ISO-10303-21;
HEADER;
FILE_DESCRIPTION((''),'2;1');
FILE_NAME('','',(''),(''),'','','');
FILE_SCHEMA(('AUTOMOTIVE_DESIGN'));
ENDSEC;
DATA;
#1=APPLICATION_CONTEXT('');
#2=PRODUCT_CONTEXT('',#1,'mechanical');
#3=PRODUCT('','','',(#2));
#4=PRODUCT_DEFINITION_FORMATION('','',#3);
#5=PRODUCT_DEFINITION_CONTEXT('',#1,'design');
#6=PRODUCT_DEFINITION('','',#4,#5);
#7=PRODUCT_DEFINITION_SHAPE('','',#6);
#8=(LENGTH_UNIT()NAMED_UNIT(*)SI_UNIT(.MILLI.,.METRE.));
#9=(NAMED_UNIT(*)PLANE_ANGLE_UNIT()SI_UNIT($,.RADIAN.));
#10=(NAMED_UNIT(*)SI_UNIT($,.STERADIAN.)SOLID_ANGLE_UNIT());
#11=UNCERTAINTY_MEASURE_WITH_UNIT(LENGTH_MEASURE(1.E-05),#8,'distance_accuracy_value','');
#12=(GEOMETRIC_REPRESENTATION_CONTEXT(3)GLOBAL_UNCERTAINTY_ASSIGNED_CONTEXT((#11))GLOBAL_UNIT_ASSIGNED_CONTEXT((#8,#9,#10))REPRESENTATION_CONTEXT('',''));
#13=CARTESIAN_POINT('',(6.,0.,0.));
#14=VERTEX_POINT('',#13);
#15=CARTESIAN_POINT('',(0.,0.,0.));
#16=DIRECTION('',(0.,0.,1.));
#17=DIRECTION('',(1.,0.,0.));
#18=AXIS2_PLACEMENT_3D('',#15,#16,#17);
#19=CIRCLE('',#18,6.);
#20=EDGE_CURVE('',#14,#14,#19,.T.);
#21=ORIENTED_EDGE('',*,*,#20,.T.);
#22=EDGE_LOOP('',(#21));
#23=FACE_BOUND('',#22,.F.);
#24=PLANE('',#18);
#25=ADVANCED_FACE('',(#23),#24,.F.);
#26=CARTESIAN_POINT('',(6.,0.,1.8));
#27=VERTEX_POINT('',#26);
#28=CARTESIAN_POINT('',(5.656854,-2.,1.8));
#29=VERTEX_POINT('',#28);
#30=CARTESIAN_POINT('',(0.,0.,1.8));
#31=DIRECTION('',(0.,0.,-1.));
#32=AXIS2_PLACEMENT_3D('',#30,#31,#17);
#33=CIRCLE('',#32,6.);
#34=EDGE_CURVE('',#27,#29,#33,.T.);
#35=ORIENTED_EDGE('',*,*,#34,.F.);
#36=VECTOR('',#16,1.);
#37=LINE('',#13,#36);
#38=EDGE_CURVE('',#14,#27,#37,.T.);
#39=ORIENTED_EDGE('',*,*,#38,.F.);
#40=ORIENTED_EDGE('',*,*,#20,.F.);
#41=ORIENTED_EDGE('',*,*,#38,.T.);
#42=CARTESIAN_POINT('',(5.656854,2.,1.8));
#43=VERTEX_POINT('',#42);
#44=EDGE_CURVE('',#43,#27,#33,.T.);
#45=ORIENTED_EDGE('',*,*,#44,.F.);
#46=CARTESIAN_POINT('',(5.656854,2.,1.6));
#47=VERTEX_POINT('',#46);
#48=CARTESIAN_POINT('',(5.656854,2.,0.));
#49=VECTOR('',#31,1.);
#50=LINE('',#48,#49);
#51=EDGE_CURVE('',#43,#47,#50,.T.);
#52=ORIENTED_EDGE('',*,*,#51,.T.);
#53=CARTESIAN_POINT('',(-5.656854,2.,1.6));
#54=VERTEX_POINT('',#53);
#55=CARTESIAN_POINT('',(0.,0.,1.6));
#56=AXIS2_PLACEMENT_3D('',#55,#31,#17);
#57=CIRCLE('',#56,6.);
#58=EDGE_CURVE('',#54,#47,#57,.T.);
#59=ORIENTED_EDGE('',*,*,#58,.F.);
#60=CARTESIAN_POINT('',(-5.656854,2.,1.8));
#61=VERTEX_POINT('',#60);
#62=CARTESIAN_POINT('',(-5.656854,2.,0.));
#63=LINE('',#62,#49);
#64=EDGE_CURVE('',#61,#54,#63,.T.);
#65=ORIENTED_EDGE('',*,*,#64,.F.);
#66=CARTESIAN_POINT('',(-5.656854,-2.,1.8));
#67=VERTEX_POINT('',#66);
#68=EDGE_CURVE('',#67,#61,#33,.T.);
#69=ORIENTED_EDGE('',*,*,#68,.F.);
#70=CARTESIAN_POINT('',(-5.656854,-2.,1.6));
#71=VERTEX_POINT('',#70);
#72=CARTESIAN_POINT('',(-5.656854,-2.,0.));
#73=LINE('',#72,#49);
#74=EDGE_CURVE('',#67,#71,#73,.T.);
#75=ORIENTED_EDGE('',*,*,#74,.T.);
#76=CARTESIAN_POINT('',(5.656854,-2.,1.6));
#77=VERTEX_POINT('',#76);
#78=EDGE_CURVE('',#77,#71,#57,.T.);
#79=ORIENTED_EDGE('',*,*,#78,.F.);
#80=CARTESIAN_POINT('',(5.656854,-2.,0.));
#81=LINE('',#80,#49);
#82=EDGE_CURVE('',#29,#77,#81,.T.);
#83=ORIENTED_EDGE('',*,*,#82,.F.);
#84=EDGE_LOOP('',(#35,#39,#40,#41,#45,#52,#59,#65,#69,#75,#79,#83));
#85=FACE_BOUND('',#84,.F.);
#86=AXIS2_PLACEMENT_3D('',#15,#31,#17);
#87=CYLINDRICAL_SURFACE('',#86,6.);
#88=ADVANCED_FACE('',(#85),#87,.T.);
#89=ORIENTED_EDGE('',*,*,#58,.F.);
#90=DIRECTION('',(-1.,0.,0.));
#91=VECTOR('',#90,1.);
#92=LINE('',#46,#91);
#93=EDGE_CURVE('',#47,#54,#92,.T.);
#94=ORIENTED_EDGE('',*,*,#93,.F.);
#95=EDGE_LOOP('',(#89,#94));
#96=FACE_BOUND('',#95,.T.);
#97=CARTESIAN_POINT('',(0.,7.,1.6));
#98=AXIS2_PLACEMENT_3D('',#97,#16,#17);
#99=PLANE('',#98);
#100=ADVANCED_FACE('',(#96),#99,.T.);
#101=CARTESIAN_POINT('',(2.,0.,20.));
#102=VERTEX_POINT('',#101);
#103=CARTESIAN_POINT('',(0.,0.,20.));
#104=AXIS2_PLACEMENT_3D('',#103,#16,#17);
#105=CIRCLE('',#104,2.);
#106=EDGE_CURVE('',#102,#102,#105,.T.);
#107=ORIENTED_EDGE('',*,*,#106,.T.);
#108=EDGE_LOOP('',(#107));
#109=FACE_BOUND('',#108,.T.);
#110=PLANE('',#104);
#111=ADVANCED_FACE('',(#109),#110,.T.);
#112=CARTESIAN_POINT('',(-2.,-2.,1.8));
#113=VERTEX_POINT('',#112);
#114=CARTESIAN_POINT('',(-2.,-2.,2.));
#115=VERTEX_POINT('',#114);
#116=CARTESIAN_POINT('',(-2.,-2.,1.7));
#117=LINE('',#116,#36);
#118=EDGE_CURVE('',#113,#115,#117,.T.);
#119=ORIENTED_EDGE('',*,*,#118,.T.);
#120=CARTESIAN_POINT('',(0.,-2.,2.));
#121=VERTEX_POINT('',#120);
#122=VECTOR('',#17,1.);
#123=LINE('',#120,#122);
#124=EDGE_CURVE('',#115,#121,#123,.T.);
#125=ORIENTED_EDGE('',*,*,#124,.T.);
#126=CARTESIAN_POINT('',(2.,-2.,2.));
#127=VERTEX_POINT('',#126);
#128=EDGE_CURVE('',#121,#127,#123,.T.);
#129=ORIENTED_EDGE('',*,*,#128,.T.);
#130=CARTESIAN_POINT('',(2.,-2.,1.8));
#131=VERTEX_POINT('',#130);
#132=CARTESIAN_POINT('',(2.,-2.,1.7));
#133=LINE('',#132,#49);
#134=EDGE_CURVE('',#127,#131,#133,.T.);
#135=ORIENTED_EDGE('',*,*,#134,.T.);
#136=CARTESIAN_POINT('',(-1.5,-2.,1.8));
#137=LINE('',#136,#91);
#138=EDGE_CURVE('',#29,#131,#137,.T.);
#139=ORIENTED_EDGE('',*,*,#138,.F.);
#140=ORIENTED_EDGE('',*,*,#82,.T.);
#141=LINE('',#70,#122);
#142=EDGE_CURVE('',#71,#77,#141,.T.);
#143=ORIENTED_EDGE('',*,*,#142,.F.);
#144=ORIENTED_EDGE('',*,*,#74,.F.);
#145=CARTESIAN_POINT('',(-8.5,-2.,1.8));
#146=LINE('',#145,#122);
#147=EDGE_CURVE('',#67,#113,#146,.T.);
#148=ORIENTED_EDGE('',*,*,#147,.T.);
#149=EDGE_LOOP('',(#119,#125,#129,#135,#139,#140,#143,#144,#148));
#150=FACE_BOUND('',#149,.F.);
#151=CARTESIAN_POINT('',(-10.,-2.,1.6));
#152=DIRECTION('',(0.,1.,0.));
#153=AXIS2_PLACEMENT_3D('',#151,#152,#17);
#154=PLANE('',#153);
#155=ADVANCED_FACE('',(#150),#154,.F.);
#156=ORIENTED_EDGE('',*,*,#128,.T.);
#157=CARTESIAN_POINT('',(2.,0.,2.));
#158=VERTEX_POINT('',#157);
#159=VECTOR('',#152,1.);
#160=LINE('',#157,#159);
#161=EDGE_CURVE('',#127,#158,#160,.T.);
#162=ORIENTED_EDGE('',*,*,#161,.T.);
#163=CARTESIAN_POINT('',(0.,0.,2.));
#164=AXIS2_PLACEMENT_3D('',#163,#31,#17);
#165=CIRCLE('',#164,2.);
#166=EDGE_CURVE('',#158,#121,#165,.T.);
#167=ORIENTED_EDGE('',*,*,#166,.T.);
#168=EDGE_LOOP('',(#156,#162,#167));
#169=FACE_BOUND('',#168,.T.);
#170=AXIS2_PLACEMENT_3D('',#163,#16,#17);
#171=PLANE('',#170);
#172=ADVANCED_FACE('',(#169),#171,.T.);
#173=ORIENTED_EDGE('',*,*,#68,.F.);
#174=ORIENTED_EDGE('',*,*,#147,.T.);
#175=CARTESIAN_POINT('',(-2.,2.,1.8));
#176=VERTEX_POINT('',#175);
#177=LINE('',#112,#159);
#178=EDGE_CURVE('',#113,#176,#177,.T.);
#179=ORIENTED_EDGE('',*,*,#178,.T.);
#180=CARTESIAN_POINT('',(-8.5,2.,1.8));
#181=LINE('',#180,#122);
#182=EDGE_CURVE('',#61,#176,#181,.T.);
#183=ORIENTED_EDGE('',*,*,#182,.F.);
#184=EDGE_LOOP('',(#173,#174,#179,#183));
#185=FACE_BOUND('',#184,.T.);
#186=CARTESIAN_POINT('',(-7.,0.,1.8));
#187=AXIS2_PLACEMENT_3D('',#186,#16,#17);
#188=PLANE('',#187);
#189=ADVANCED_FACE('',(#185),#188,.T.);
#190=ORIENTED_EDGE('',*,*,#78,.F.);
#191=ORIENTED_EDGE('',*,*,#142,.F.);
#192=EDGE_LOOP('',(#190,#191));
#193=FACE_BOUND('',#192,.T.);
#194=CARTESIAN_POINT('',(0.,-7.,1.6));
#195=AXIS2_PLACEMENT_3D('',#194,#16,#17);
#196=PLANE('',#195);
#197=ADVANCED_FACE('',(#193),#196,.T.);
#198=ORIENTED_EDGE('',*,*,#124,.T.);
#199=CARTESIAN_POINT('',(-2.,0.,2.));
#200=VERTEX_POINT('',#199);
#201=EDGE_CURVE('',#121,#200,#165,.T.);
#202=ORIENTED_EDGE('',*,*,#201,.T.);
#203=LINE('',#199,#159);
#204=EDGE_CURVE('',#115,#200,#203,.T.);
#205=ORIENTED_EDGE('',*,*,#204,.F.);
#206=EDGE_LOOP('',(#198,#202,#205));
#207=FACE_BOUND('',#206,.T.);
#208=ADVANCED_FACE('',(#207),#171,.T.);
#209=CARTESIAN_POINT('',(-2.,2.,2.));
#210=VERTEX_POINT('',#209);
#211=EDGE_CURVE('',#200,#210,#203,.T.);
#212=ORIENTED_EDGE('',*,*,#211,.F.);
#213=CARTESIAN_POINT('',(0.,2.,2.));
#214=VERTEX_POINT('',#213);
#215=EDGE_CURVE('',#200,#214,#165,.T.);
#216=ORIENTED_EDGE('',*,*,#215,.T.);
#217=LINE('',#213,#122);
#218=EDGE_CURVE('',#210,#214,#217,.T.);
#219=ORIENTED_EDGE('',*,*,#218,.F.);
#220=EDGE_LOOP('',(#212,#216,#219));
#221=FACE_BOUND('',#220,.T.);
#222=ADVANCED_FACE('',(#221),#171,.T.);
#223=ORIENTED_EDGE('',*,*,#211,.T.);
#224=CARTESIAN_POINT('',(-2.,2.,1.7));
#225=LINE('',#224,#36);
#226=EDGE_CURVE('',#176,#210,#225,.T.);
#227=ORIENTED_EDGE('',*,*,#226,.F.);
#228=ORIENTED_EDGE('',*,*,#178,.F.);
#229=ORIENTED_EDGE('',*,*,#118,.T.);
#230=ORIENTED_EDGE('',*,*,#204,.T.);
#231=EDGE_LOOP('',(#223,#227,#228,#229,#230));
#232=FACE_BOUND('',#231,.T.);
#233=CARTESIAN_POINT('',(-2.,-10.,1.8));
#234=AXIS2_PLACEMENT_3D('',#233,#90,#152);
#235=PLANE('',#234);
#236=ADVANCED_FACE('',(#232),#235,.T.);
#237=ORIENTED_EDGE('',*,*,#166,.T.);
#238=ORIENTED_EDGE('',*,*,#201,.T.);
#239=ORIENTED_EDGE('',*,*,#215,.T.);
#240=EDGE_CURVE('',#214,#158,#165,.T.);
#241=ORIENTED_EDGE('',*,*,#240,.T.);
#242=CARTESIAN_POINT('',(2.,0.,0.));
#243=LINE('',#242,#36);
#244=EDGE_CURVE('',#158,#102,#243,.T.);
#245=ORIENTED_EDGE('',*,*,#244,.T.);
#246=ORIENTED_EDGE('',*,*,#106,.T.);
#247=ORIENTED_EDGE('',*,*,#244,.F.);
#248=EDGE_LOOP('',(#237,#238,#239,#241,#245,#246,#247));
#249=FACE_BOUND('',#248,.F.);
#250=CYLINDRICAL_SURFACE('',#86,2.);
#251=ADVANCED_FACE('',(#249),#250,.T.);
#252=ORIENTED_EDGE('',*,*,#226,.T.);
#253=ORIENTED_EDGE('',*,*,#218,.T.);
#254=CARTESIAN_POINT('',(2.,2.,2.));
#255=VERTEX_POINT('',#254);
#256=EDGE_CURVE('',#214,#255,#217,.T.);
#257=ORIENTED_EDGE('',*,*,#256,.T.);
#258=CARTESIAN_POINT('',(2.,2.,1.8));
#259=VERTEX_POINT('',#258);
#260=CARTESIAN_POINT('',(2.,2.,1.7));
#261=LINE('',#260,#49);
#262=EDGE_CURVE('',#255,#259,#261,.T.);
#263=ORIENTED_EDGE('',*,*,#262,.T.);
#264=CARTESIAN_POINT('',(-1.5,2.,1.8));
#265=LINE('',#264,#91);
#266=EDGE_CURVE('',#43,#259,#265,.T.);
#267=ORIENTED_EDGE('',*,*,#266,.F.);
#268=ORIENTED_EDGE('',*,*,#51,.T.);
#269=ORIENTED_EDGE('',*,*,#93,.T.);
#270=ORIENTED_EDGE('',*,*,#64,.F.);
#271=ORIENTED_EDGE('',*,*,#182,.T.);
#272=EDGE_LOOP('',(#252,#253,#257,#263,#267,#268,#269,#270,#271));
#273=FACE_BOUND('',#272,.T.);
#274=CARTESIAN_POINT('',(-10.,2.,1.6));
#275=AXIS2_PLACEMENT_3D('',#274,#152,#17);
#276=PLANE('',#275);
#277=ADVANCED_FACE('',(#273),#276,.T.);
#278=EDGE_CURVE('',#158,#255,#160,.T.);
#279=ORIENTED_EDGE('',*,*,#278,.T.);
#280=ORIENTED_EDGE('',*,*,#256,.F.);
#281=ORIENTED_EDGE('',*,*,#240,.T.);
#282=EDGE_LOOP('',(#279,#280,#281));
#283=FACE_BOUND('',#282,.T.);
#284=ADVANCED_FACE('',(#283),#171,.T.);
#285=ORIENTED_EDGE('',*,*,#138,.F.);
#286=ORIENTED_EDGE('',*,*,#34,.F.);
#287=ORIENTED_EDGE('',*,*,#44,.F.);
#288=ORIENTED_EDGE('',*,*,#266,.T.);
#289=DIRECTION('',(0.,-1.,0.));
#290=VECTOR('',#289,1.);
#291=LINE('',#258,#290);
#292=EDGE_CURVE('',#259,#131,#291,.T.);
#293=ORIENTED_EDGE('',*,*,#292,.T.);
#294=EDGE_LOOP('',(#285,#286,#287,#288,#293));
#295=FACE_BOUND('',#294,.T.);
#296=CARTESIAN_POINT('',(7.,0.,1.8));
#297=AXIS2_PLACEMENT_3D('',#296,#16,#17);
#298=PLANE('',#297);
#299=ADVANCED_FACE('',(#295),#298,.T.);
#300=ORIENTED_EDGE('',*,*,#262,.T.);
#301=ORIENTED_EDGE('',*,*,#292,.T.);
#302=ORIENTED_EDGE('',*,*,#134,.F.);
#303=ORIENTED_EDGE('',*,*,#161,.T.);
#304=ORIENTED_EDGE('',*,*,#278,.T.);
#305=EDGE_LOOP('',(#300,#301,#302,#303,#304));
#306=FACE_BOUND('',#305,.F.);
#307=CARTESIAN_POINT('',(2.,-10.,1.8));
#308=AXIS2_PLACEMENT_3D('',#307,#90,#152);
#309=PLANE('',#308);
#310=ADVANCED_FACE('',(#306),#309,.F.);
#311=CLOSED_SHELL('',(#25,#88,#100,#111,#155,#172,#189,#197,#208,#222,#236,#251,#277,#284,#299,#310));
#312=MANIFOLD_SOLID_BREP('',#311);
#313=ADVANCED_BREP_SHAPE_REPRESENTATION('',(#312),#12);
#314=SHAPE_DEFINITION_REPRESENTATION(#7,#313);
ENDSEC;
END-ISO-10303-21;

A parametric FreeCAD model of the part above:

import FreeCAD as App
import Part
import Sketcher
from FreeCAD import Vector


def add_polygon(sketch, points):
    """Adds a closed chain of lines whose ends are joined by coincident constraints."""
    first, n = sketch.GeometryCount, len(points)
    for a, b in zip(points, points[1:] + points[:1]):
        sketch.addGeometry(Part.LineSegment(App.Vector(*a, 0), App.Vector(*b, 0)), False)
    for i in range(n):
        sketch.addConstraint(Sketcher.Constraint("Coincident", first + i, 2, first + (i + 1) % n, 1))

doc = App.newDocument("Part")
body = doc.addObject("PartDesign::Body", "Body")

# Sketch on XY plane
sketch1 = doc.addObject("Sketcher::SketchObject", "Sketch")
body.addObject(sketch1)
sketch1.AttachmentSupport = (doc.XY_Plane, [""])
sketch1.MapMode = "FlatFace"
sketch1.AttachmentOffset = App.Placement(Vector(0, 0, 1.6), App.Rotation())
add_polygon(sketch1, [(-10, 12), (-10, 2), (10, 2), (10, 12)])  # lines 0-3
sketch1.addConstraint(Sketcher.Constraint("Vertical", 0))
sketch1.addConstraint(Sketcher.Constraint("Horizontal", 1))
sketch1.addConstraint(Sketcher.Constraint("Vertical", 2))
sketch1.addConstraint(Sketcher.Constraint("Horizontal", 3))
sketch1.addConstraint(Sketcher.Constraint("DistanceX", 1, 1, 1, 2, 20.0))
sketch1.addConstraint(Sketcher.Constraint("DistanceY", 0, 2, 0, 1, 10.0))
sketch1.addConstraint(Sketcher.Constraint("DistanceX", 0, 2, -1, 1, 10.0))
sketch1.addConstraint(Sketcher.Constraint("DistanceY", -1, 1, 0, 2, 2.0))
pad1 = doc.addObject("PartDesign::Pad", "Pad")
body.addObject(pad1)
pad1.Profile = sketch1
pad1.Length = 0.4
body2 = doc.addObject("PartDesign::Body", "Body001")

# Sketch on XY plane
sketch2 = doc.addObject("Sketcher::SketchObject", "Sketch001")
body2.addObject(sketch2)
sketch2.AttachmentSupport = (doc.getObject("XY_Plane001"), [""])
sketch2.MapMode = "FlatFace"
sketch2.AttachmentOffset = App.Placement(Vector(0, 0, 1.6), App.Rotation())
add_polygon(sketch2, [(-10, -2), (-10, -12), (10, -12), (10, -2)])  # lines 0-3
sketch2.addConstraint(Sketcher.Constraint("Vertical", 0))
sketch2.addConstraint(Sketcher.Constraint("Horizontal", 1))
sketch2.addConstraint(Sketcher.Constraint("Vertical", 2))
sketch2.addConstraint(Sketcher.Constraint("Horizontal", 3))
sketch2.addConstraint(Sketcher.Constraint("DistanceX", 1, 1, 1, 2, 20.0))
sketch2.addConstraint(Sketcher.Constraint("DistanceY", 0, 2, 0, 1, 10.0))
sketch2.addConstraint(Sketcher.Constraint("DistanceX", 0, 2, -1, 1, 10.0))
sketch2.addConstraint(Sketcher.Constraint("DistanceY", 0, 2, -1, 1, 12.0))
pad2 = doc.addObject("PartDesign::Pad", "Pad001")
body2.addObject(pad2)
pad2.Profile = sketch2
pad2.Length = 0.4
body3 = doc.addObject("PartDesign::Body", "Body002")

# Sketch on XY plane
sketch3 = doc.addObject("Sketcher::SketchObject", "Sketch002")
body3.addObject(sketch3)
sketch3.AttachmentSupport = (doc.getObject("XY_Plane002"), [""])
sketch3.MapMode = "FlatFace"
sketch3.AttachmentOffset = App.Placement(Vector(0, 0, 1.8), App.Rotation())
add_polygon(sketch3, [(-12, 10), (-12, -10), (-2, -10), (-2, 10)])  # lines 0-3
sketch3.addConstraint(Sketcher.Constraint("Vertical", 0))
sketch3.addConstraint(Sketcher.Constraint("Horizontal", 1))
sketch3.addConstraint(Sketcher.Constraint("Vertical", 2))
sketch3.addConstraint(Sketcher.Constraint("Horizontal", 3))
sketch3.addConstraint(Sketcher.Constraint("DistanceX", 1, 1, 1, 2, 10.0))
sketch3.addConstraint(Sketcher.Constraint("DistanceY", 0, 2, 0, 1, 20.0))
sketch3.addConstraint(Sketcher.Constraint("DistanceX", 0, 2, -1, 1, 12.0))
sketch3.addConstraint(Sketcher.Constraint("DistanceY", 0, 2, -1, 1, 10.0))
pad3 = doc.addObject("PartDesign::Pad", "Pad002")
body3.addObject(pad3)
pad3.Profile = sketch3
pad3.Length = 0.2
body4 = doc.addObject("PartDesign::Body", "Body003")

# Sketch on XY plane
sketch4 = doc.addObject("Sketcher::SketchObject", "Sketch003")
body4.addObject(sketch4)
sketch4.AttachmentSupport = (doc.getObject("XY_Plane003"), [""])
sketch4.MapMode = "FlatFace"
sketch4.AttachmentOffset = App.Placement(Vector(0, 0, 1.8), App.Rotation())
add_polygon(sketch4, [(2, 10), (2, -10), (12, -10), (12, 10)])  # lines 0-3
sketch4.addConstraint(Sketcher.Constraint("Vertical", 0))
sketch4.addConstraint(Sketcher.Constraint("Horizontal", 1))
sketch4.addConstraint(Sketcher.Constraint("Vertical", 2))
sketch4.addConstraint(Sketcher.Constraint("Horizontal", 3))
sketch4.addConstraint(Sketcher.Constraint("DistanceX", 1, 1, 1, 2, 10.0))
sketch4.addConstraint(Sketcher.Constraint("DistanceY", 0, 2, 0, 1, 20.0))
sketch4.addConstraint(Sketcher.Constraint("DistanceX", -1, 1, 0, 2, 2.0))
sketch4.addConstraint(Sketcher.Constraint("DistanceY", 0, 2, -1, 1, 10.0))
pad4 = doc.addObject("PartDesign::Pad", "Pad003")
body4.addObject(pad4)
pad4.Profile = sketch4
pad4.Length = 0.2
doc.recompute()

boolean = doc.addObject("PartDesign::Boolean", "Boolean")
body4.addObject(boolean)
boolean.Type = "Fuse"
boolean.addObjects([body])
doc.recompute()

boolean2 = doc.addObject("PartDesign::Boolean", "Boolean001")
body4.addObject(boolean2)
boolean2.Type = "Fuse"
boolean2.addObjects([body2])
doc.recompute()

boolean3 = doc.addObject("PartDesign::Boolean", "Boolean002")
body4.addObject(boolean3)
boolean3.Type = "Fuse"
boolean3.addObjects([body3])
body5 = doc.addObject("PartDesign::Body", "Body004")

# Sketch on XY plane
sketch5 = doc.addObject("Sketcher::SketchObject", "Sketch004")
body5.addObject(sketch5)
sketch5.AttachmentSupport = (doc.getObject("XY_Plane004"), [""])
sketch5.MapMode = "FlatFace"
sketch5.addGeometry(Part.Circle(Vector(0, 0, 0), Vector(0, 0, 1), 6), False)
sketch5.addConstraint(Sketcher.Constraint("Coincident", 0, 3, -1, 1))
sketch5.addConstraint(Sketcher.Constraint("Diameter", 0, 12.0))
pad5 = doc.addObject("PartDesign::Pad", "Pad004")
body5.addObject(pad5)
pad5.Profile = sketch5
pad5.Length = 2
doc.recompute()

boolean4 = doc.addObject("PartDesign::Boolean", "Boolean003")
body5.addObject(boolean4)
boolean4.Type = "Cut"
boolean4.addObjects([body4])
body6 = doc.addObject("PartDesign::Body", "Body005")

# Sketch on XY plane
sketch6 = doc.addObject("Sketcher::SketchObject", "Sketch005")
body6.addObject(sketch6)
sketch6.AttachmentSupport = (doc.getObject("XY_Plane005"), [""])
sketch6.MapMode = "FlatFace"
sketch6.addGeometry(Part.Circle(Vector(0, 0, 0), Vector(0, 0, 1), 2), False)
sketch6.addConstraint(Sketcher.Constraint("Coincident", 0, 3, -1, 1))
sketch6.addConstraint(Sketcher.Constraint("Diameter", 0, 4.0))
pad6 = doc.addObject("PartDesign::Pad", "Pad005")
body6.addObject(pad6)
pad6.Profile = sketch6
pad6.Length = 20
doc.recompute()

boolean5 = doc.addObject("PartDesign::Boolean", "Boolean004")
body6.addObject(boolean5)
boolean5.Type = "Fuse"
boolean5.addObjects([body5])

doc.recompute()
